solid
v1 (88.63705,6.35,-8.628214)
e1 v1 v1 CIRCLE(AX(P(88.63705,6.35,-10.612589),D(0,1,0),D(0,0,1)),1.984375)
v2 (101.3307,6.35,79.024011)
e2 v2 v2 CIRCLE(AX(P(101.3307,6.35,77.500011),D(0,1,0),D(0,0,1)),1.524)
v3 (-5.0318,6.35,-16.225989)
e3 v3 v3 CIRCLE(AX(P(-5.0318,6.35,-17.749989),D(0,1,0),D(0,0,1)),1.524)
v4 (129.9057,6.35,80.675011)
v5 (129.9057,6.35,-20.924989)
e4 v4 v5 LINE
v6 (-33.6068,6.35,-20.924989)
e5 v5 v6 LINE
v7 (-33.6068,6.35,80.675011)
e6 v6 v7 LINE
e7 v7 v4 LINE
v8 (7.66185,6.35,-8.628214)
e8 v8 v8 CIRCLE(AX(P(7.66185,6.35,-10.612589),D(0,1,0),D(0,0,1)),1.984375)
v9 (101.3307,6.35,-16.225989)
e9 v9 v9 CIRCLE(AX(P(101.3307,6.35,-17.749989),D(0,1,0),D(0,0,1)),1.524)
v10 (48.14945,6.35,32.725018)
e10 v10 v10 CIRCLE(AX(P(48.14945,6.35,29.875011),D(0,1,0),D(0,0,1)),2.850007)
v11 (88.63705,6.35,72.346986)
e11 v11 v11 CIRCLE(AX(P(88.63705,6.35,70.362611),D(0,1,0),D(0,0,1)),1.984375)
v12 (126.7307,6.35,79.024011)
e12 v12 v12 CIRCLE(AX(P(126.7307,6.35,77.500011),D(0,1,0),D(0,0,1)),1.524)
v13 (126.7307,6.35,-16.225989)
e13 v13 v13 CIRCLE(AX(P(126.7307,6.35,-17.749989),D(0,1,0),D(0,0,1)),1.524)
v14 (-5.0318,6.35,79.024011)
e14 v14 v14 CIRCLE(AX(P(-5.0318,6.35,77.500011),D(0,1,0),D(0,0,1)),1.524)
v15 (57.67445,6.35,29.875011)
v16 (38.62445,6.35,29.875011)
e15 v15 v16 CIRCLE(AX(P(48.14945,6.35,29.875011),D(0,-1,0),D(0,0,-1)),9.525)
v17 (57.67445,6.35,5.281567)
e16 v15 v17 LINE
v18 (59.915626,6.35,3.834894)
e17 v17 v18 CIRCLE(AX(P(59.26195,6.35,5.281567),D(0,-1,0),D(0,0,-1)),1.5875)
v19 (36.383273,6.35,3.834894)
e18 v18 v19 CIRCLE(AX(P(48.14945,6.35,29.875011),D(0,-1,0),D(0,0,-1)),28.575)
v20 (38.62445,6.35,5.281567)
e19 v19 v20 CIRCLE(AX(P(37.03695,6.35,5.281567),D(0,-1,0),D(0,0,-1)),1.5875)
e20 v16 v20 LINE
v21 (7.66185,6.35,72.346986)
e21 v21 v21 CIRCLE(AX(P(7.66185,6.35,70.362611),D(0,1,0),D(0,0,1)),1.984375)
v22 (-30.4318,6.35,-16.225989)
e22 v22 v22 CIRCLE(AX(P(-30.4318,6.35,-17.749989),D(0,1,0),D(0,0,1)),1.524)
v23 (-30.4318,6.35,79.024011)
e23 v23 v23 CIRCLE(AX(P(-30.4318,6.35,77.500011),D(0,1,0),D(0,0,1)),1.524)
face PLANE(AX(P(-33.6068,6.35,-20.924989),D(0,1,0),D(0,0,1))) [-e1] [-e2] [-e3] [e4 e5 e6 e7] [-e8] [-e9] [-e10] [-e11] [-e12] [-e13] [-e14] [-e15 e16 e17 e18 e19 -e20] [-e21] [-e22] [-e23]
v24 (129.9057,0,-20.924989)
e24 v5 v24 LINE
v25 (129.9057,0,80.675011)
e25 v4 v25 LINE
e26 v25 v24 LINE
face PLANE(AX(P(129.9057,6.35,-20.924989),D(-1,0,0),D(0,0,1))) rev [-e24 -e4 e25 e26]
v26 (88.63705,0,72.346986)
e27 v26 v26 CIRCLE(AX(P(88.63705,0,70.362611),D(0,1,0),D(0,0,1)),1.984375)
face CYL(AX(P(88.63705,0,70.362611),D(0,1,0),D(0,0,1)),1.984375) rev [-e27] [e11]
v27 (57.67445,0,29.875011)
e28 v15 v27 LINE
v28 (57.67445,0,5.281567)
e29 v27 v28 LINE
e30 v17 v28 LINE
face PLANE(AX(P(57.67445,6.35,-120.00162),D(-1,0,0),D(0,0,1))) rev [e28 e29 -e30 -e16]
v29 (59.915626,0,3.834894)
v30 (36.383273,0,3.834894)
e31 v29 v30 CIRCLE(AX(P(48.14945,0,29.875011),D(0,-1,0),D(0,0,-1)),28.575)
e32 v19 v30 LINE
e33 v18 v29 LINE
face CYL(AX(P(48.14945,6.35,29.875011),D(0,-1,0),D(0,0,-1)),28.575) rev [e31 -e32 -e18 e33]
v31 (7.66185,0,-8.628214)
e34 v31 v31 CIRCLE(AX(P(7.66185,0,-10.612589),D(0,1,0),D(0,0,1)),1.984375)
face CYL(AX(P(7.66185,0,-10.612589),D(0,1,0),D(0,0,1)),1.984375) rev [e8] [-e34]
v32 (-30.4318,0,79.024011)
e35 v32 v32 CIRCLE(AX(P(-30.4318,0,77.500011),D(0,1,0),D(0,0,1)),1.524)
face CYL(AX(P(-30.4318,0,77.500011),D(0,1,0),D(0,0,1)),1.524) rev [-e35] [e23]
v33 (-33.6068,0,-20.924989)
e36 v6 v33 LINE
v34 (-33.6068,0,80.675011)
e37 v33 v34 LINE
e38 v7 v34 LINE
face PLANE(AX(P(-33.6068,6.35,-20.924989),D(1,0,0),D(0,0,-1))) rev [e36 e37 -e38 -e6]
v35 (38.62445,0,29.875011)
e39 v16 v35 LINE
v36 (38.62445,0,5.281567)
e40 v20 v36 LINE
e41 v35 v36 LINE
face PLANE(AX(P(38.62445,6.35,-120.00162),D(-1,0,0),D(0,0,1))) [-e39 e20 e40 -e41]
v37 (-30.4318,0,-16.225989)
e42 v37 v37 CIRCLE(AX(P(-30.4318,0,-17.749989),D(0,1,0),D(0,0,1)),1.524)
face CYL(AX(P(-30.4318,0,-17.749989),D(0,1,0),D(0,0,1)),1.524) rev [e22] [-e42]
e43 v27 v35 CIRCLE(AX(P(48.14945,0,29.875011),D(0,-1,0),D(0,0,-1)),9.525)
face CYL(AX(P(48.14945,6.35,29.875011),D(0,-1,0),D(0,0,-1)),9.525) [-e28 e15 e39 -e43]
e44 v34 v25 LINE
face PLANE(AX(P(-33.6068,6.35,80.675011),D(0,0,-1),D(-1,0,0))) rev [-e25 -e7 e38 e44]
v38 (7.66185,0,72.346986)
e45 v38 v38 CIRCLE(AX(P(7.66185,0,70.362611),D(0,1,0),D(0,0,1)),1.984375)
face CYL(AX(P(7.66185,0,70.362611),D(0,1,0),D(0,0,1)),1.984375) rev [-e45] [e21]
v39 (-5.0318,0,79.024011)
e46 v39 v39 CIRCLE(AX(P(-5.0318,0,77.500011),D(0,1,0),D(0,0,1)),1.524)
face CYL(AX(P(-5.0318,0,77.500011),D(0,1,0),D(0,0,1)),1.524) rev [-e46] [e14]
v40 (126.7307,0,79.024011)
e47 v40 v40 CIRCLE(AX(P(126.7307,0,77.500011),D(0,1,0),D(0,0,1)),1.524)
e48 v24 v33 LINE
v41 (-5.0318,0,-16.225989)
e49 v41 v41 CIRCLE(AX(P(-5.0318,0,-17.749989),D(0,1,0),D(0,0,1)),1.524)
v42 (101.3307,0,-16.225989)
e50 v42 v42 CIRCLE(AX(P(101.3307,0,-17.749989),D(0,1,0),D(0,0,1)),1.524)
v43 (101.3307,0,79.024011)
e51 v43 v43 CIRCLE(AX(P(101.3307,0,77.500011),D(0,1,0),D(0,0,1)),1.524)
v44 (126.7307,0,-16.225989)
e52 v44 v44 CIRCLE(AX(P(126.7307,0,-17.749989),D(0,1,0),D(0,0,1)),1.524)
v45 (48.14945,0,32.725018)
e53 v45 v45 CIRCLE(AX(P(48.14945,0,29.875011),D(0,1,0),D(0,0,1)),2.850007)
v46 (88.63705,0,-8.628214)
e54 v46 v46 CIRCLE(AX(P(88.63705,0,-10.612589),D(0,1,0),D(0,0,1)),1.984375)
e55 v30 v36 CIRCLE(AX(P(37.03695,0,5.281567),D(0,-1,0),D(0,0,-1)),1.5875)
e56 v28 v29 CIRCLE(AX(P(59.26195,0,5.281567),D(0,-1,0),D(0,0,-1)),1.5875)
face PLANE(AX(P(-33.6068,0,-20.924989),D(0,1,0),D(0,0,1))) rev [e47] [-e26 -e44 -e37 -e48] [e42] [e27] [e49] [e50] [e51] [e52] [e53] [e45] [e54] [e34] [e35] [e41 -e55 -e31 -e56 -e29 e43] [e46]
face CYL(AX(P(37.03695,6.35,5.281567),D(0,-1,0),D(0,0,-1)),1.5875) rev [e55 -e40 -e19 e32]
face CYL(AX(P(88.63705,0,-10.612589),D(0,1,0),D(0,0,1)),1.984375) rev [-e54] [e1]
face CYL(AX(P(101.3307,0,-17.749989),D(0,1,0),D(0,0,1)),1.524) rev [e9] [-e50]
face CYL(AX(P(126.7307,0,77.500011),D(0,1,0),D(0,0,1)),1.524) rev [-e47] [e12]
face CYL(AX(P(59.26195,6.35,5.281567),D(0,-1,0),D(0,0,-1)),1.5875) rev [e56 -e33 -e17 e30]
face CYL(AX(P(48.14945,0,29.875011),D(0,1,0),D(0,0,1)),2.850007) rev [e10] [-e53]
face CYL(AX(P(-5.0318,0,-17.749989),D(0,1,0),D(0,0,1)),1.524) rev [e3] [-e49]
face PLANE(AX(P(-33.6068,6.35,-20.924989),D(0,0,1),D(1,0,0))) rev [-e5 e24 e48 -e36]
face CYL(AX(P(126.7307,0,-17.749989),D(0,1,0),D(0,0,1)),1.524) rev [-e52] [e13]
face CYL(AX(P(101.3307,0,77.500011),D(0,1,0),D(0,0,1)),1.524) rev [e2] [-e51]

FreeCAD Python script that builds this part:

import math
import FreeCAD as App
import Part
import Sketcher

V = App.Vector
Q = App.Units.Quantity

doc = App.newDocument("Part")
body = doc.addObject("PartDesign::Body", "Body")

# Sketch on XZ plane
sketch1 = body.newObject("Sketcher::SketchObject", "Sketch")
sketch1.AttachmentSupport = (doc.getObject("XZ_Plane"), [""])
sketch1.MapMode = "FlatFace"
sketch1.addGeometry(Part.LineSegment(V(-33.6068, -20.924989, 0), V(-33.6068, 80.675011, 0)), False)
sketch1.addGeometry(Part.LineSegment(V(-33.6068, 80.675011, 0), V(129.9057, 80.675011, 0)), False)
sketch1.addGeometry(Part.LineSegment(V(129.9057, 80.675011, 0), V(129.9057, -20.924989, 0)), False)
sketch1.addGeometry(Part.LineSegment(V(129.9057, -20.924989, 0), V(-33.6068, -20.924989, 0)), False)
sketch1.addConstraint(Sketcher.Constraint("Coincident", 0, 2, 1, 1))
sketch1.addConstraint(Sketcher.Constraint("Coincident", 1, 2, 2, 1))
sketch1.addConstraint(Sketcher.Constraint("Coincident", 2, 2, 3, 1))
sketch1.addConstraint(Sketcher.Constraint("Coincident", 3, 2, 0, 1))
sketch1.addConstraint(Sketcher.Constraint("Vertical", 0))
sketch1.addConstraint(Sketcher.Constraint("Horizontal", 1))
sketch1.addConstraint(Sketcher.Constraint("Vertical", 2))
sketch1.addConstraint(Sketcher.Constraint("Horizontal", 3))
sketch1.addConstraint(Sketcher.Constraint("DistanceY", 0, 1, 0, 2, Q("4 in")))
sketch1.addConstraint(Sketcher.Constraint("DistanceX", 1, 1, 1, 2, Q("6.4375 in")))
sketch1.addConstraint(Sketcher.Constraint("DistanceX", 0, 2, -1, 1, 33.6068))
sketch1.addConstraint(Sketcher.Constraint("DistanceY", -1, 1, 0, 2, 80.675011))
pad1 = body.newObject("PartDesign::Pad", "Pad")
pad1.Profile = sketch1
pad1.Length = Q("0.25 in")
pad1.Reversed = True

# Sketch on XZ plane
sketch2 = body.newObject("Sketcher::SketchObject", "Sketch001")
sketch2.AttachmentSupport = (doc.getObject("XZ_Plane"), [""])
sketch2.MapMode = "FlatFace"
sketch2.AttachmentOffset = App.Placement(V(0, 0, -0.25 * 25.4), App.Rotation())
sketch2.addGeometry(Part.Circle(V(-30.4318, -17.749989, 0), V(0, 0, 1), 1.524), False)
sketch2.addGeometry(Part.Circle(V(-30.4318, 77.500011, 0), V(0, 0, 1), 1.524), False)
sketch2.addGeometry(Part.Circle(V(126.7307, 77.500011, 0), V(0, 0, 1), 1.524), False)
sketch2.addGeometry(Part.Circle(V(126.7307, -17.749989, 0), V(0, 0, 1), 1.524), False)
sketch2.addGeometry(Part.Circle(V(-5.0318, -17.749989, 0), V(0, 0, 1), 1.524), False)
sketch2.addGeometry(Part.Circle(V(-5.0318, 77.500011, 0), V(0, 0, 1), 1.524), False)
sketch2.addGeometry(Part.Circle(V(101.3307, -17.749989, 0), V(0, 0, 1), 1.524), False)
sketch2.addGeometry(Part.Circle(V(101.3307, 77.500011, 0), V(0, 0, 1), 1.524), False)
sketch2.addConstraint(Sketcher.Constraint("Equal", 0, 1))
sketch2.addConstraint(Sketcher.Constraint("Equal", 1, 2))
sketch2.addConstraint(Sketcher.Constraint("Equal", 2, 3))
sketch2.addConstraint(Sketcher.Constraint("Equal", 3, 4))
sketch2.addConstraint(Sketcher.Constraint("Equal", 4, 5))
sketch2.addConstraint(Sketcher.Constraint("Equal", 5, 6))
sketch2.addConstraint(Sketcher.Constraint("Equal", 6, 7))
sketch2.addConstraint(Sketcher.Constraint("Horizontal", 1, 3, 2, 3))
sketch2.addConstraint(Sketcher.Constraint("Horizontal", 0, 3, 3, 3))
sketch2.addConstraint(Sketcher.Constraint("Horizontal", 3, 3, 4, 3))
sketch2.addConstraint(Sketcher.Constraint("Horizontal", 2, 3, 5, 3))
sketch2.addConstraint(Sketcher.Constraint("Horizontal", 4, 3, 6, 3))
sketch2.addConstraint(Sketcher.Constraint("Horizontal", 5, 3, 7, 3))
sketch2.addConstraint(Sketcher.Constraint("Vertical", 0, 3, 1, 3))
sketch2.addConstraint(Sketcher.Constraint("Vertical", 2, 3, 3, 3))
sketch2.addConstraint(Sketcher.Constraint("Vertical", 4, 3, 5, 3))
sketch2.addConstraint(Sketcher.Constraint("Vertical", 6, 3, 7, 3))
sketch2.addConstraint(Sketcher.Constraint("Diameter", 0, Q("0.12 in")))
sketch2.addConstraint(Sketcher.Constraint("DistanceX", 0, 3, 4, 3, Q("1 in")))
sketch2.addConstraint(Sketcher.Constraint("DistanceX", 6, 3, 3, 3, Q("1 in")))
sketch2.addConstraint(Sketcher.Constraint("DistanceY", 0, 3, 1, 3, Q("3.75 in")))
sketch2.addConstraint(Sketcher.Constraint("DistanceX", 1, 3, 2, 3, Q("6.1875 in")))
sketch2.addConstraint(Sketcher.Constraint("DistanceX", 0, 3, -1, 1, 30.4318))
sketch2.addConstraint(Sketcher.Constraint("DistanceY", 0, 3, -1, 1, 17.749989))
pocket1 = body.newObject("PartDesign::Pocket", "Pocket")
pocket1.Profile = sketch2
pocket1.Type = "ThroughAll"
pocket1.Reversed = True

# Sketch on XZ plane
sketch3 = body.newObject("Sketcher::SketchObject", "Sketch002")
sketch3.AttachmentSupport = (doc.getObject("XZ_Plane"), [""])
sketch3.MapMode = "FlatFace"
sketch3.AttachmentOffset = App.Placement(V(0, 0, -0.25 * 25.4), App.Rotation())
sketch3.addGeometry(Part.Circle(V(7.66185, -10.612589, 0), V(0, 0, 1), 1.984375), False)
sketch3.addGeometry(Part.Circle(V(88.63705, -10.612589, 0), V(0, 0, 1), 1.984375), False)
sketch3.addGeometry(Part.Circle(V(7.66185, 70.362611, 0), V(0, 0, 1), 1.984375), False)
sketch3.addGeometry(Part.Circle(V(88.63705, 70.362611, 0), V(0, 0, 1), 1.984375), False)
sketch3.addConstraint(Sketcher.Constraint("Equal", 0, 1))
sketch3.addConstraint(Sketcher.Constraint("Equal", 1, 2))
sketch3.addConstraint(Sketcher.Constraint("Equal", 2, 3))
sketch3.addConstraint(Sketcher.Constraint("Horizontal", 0, 3, 1, 3))
sketch3.addConstraint(Sketcher.Constraint("Horizontal", 2, 3, 3, 3))
sketch3.addConstraint(Sketcher.Constraint("Vertical", 0, 3, 2, 3))
sketch3.addConstraint(Sketcher.Constraint("Vertical", 1, 3, 3, 3))
sketch3.addConstraint(Sketcher.Constraint("Diameter", 0, Q("0.15625 in")))
sketch3.addConstraint(Sketcher.Constraint("DistanceX", 0, 3, 1, 3, Q("3.188 in")))
sketch3.addConstraint(Sketcher.Constraint("DistanceY", 0, 3, 2, 3, Q("3.188 in")))
sketch3.addConstraint(Sketcher.Constraint("DistanceX", -1, 1, 0, 3, 7.66185))
sketch3.addConstraint(Sketcher.Constraint("DistanceY", 0, 3, -1, 1, 10.612589))
pocket2 = body.newObject("PartDesign::Pocket", "Pocket001")
pocket2.Profile = sketch3
pocket2.Type = "ThroughAll"
pocket2.Reversed = True

# Sketch on XZ plane
sketch4 = body.newObject("Sketcher::SketchObject", "Sketch003")
sketch4.AttachmentSupport = (doc.getObject("XZ_Plane"), [""])
sketch4.MapMode = "FlatFace"
sketch4.AttachmentOffset = App.Placement(V(0, 0, -0.25 * 25.4), App.Rotation())
sketch4.addGeometry(Part.Circle(V(48.14945, 29.875011, 0), V(0, 0, 1), 2.850007), False)
sketch4.addConstraint(Sketcher.Constraint("Diameter", 0, 5.700014))
sketch4.addConstraint(Sketcher.Constraint("DistanceX", -1, 1, 0, 3, 48.14945))
sketch4.addConstraint(Sketcher.Constraint("DistanceY", -1, 1, 0, 3, 29.875011))
pocket3 = body.newObject("PartDesign::Pocket", "Pocket002")
pocket3.Profile = sketch4
pocket3.Type = "ThroughAll"
pocket3.Reversed = True

# Sketch on XZ plane
sketch5 = body.newObject("Sketcher::SketchObject", "Sketch004")
sketch5.AttachmentSupport = (doc.getObject("XZ_Plane"), [""])
sketch5.MapMode = "FlatFace"
sketch5.addGeometry(Part.LineSegment(V(38.62445, 5.281567, 0), V(38.62445, 29.875011, 0)), False)
sketch5.addGeometry(Part.ArcOfCircle(Part.Circle(V(48.14945, 29.875011, 0), V(0, 0, 1), 9.525), math.radians(0), math.radians(180)), False)
sketch5.addGeometry(Part.LineSegment(V(57.67445, 29.875011, 0), V(57.67445, 5.281567, 0)), False)
sketch5.addGeometry(Part.ArcOfCircle(Part.Circle(V(59.26195, 5.281567, 0), V(0, 0, 1), 1.5875), math.radians(180), math.radians(294.315739)), False)
sketch5.addGeometry(Part.ArcOfCircle(Part.Circle(V(48.14945, 29.875011, 0), V(0, 0, 1), 28.575), math.radians(-65.684261), math.radians(0)), False)
sketch5.addGeometry(Part.ArcOfCircle(Part.Circle(V(48.14945, 29.875011, 0), V(0, 0, 1), 28.575), math.radians(0), math.radians(245.684261)), False)
sketch5.addGeometry(Part.ArcOfCircle(Part.Circle(V(37.03695, 5.281567, 0), V(0, 0, 1), 1.5875), math.radians(-114.315739), math.radians(0)), False)
sketch5.addConstraint(Sketcher.Constraint("Tangent", 0, 2, 1, 2))
sketch5.addConstraint(Sketcher.Constraint("Tangent", 1, 1, 2, 1))
sketch5.addConstraint(Sketcher.Constraint("Tangent", 2, 2, 3, 1))
sketch5.addConstraint(Sketcher.Constraint("Tangent", 3, 2, 4, 1))
sketch5.addConstraint(Sketcher.Constraint("Tangent", 4, 2, 5, 1))
sketch5.addConstraint(Sketcher.Constraint("Tangent", 5, 2, 6, 1))
sketch5.addConstraint(Sketcher.Constraint("Tangent", 6, 2, 0, 1))
sketch5.addConstraint(Sketcher.Constraint("Vertical", 0))
sketch5.addConstraint(Sketcher.Constraint("Vertical", 2))
sketch5.addConstraint(Sketcher.Constraint("Coincident", 4, 3, 1, 3))
sketch5.addConstraint(Sketcher.Constraint("Equal", 4, 5))
sketch5.addConstraint(Sketcher.Constraint("Equal", 3, 6))
sketch5.addConstraint(Sketcher.Constraint("Horizontal", 1, 1, 4, 2))
sketch5.addConstraint(Sketcher.Constraint("Radius", 1, Q("0.375 in")))
sketch5.addConstraint(Sketcher.Constraint("Radius", 3, Q("0.0625 in")))
sketch5.addConstraint(Sketcher.Constraint("Radius", 4, Q("1.125 in")))
sketch5.addConstraint(Sketcher.Constraint("DistanceX", -1, 1, 1, 3, 48.14945))
sketch5.addConstraint(Sketcher.Constraint("DistanceY", -1, 1, 1, 3, 29.875011))
pocket4 = body.newObject("PartDesign::Pocket", "Pocket003")
pocket4.Profile = sketch5
pocket4.Type = "ThroughAll"

doc.recompute()
